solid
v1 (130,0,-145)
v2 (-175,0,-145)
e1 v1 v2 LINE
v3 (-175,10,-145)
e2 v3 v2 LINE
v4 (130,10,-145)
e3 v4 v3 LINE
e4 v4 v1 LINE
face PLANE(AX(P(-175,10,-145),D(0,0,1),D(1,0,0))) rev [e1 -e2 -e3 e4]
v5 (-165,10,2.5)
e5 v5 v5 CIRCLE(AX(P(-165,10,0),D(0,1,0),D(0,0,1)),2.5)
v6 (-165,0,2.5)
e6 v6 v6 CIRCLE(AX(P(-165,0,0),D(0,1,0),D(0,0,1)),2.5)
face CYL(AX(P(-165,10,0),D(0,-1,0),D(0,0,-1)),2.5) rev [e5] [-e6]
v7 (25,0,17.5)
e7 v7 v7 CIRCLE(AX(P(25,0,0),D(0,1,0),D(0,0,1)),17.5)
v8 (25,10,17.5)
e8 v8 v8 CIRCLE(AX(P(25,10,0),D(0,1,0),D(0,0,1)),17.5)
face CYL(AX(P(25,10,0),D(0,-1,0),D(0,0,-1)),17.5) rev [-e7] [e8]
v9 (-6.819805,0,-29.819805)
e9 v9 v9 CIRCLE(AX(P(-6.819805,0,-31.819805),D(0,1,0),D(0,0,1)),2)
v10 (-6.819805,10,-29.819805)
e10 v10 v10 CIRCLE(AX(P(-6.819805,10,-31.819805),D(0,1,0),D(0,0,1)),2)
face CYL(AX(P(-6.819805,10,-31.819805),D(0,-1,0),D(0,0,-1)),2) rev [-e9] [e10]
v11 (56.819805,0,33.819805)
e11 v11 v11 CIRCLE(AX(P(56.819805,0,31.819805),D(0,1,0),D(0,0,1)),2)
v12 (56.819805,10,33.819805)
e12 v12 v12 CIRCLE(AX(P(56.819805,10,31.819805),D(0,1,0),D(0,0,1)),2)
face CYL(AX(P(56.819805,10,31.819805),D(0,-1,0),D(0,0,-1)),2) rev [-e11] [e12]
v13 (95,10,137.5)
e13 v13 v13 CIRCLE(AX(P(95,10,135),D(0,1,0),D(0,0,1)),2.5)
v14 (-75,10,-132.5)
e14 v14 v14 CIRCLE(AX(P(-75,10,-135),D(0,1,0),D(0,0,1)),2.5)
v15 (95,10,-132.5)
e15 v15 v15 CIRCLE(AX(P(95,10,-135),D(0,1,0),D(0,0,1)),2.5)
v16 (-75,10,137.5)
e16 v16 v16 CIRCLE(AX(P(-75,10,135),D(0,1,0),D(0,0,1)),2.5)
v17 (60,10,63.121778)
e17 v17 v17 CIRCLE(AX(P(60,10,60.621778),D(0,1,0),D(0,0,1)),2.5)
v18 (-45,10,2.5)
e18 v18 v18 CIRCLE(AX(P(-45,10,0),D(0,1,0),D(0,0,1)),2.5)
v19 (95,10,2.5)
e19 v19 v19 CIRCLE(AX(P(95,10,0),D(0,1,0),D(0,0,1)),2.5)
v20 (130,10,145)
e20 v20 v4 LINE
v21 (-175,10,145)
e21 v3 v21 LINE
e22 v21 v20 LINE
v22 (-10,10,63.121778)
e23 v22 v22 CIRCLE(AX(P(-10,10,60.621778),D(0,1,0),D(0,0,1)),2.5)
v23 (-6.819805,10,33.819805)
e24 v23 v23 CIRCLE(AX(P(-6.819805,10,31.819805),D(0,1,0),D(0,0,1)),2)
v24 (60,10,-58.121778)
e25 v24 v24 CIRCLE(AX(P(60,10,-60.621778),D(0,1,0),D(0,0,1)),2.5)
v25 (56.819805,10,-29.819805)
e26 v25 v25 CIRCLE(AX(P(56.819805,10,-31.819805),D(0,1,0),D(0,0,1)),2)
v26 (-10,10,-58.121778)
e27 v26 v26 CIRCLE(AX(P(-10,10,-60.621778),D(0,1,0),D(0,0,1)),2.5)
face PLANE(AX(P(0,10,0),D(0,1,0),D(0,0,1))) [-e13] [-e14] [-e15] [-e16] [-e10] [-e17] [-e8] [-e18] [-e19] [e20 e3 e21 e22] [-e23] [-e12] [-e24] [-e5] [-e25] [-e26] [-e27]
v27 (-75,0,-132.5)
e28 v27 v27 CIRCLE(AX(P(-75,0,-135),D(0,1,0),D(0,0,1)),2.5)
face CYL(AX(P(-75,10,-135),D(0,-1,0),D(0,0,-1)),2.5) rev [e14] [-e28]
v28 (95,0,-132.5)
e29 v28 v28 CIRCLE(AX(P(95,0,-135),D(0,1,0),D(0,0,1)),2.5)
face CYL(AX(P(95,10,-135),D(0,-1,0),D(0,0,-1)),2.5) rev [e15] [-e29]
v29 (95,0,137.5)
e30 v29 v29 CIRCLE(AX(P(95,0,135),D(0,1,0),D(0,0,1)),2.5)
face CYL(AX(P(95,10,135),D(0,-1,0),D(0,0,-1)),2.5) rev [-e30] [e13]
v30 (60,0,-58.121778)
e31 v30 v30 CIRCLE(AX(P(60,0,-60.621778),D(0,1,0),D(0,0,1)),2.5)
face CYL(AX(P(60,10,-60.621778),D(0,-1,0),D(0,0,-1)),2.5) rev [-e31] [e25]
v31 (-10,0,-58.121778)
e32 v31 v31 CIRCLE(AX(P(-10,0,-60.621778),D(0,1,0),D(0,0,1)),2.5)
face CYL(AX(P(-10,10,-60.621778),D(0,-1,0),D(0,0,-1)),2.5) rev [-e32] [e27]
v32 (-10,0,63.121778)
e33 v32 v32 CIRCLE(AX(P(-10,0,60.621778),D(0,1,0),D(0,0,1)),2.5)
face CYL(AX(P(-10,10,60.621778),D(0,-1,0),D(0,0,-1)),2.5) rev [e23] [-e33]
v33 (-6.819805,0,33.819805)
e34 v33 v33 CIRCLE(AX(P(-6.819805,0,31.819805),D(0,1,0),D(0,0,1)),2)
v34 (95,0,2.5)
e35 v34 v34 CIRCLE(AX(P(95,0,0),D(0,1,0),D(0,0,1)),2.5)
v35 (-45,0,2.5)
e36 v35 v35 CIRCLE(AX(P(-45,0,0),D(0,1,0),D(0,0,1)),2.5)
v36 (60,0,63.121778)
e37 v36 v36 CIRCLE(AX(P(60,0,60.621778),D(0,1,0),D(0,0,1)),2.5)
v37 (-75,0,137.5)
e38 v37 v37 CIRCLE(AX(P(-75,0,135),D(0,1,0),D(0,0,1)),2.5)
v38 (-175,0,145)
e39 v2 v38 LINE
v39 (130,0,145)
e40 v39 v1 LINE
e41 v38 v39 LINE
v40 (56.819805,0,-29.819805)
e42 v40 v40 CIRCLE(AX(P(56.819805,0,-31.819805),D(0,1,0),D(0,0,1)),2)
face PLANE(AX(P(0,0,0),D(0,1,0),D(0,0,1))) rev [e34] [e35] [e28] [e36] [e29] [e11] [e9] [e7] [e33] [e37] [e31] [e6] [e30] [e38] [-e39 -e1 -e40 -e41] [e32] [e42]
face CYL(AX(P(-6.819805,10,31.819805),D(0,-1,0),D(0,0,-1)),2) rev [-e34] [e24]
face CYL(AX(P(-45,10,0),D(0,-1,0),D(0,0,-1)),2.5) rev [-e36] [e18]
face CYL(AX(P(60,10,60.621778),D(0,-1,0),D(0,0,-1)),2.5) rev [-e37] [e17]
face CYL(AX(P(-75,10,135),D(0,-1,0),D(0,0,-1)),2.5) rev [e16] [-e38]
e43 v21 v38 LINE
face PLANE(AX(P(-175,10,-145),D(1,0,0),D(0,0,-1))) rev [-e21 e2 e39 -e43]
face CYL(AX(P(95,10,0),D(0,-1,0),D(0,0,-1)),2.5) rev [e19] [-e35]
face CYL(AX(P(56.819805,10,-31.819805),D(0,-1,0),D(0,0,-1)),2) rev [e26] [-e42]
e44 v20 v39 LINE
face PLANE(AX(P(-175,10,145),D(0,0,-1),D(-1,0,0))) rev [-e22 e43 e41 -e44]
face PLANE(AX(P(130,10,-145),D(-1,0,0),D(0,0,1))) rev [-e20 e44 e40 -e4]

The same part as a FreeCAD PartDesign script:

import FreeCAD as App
import Part
import Sketcher
Q = App.Units.Quantity


def add_polygon(sketch, points):
    """Adds a closed chain of lines whose ends are joined by coincident constraints."""
    first, n = sketch.GeometryCount, len(points)
    for a, b in zip(points, points[1:] + points[:1]):
        sketch.addGeometry(Part.LineSegment(App.Vector(*a, 0), App.Vector(*b, 0)), False)
    for i in range(n):
        sketch.addConstraint(Sketcher.Constraint("Coincident", first + i, 2, first + (i + 1) % n, 1))

doc = App.newDocument("Part")
body = doc.addObject("PartDesign::Body", "Body")

# Sketch on XZ plane
sketch1 = body.newObject("Sketcher::SketchObject", "Sketch")
sketch1.AttachmentSupport = (doc.getObject("XZ_Plane"), [""])
sketch1.MapMode = "FlatFace"
add_polygon(sketch1, [(-175, -145), (-175, 145), (130, 145), (130, -145)])  # lines 0-3
sketch1.addGeometry(Part.Circle(App.Vector(-75, 135, 0), App.Vector(0, 0, 1), 2.5), False)  # 4
sketch1.addGeometry(Part.Circle(App.Vector(95, 135, 0), App.Vector(0, 0, 1), 2.5), False)  # 5
sketch1.addGeometry(Part.Circle(App.Vector(-10, 60.6, 0), App.Vector(0, 0, 1), 2.5), False)  # 6
sketch1.addGeometry(Part.Circle(App.Vector(-6.8, 31.8, 0), App.Vector(0, 0, 1), 2), False)  # 7
sketch1.addGeometry(Part.Circle(App.Vector(60, 60.6, 0), App.Vector(0, 0, 1), 2.5), False)  # 8
sketch1.addGeometry(Part.Circle(App.Vector(56.8, 31.8, 0), App.Vector(0, 0, 1), 2), False)  # 9
sketch1.addGeometry(Part.Circle(App.Vector(-165, 0, 0), App.Vector(0, 0, 1), 2.5), False)  # 10
sketch1.addGeometry(Part.Circle(App.Vector(-45, 0, 0), App.Vector(0, 0, 1), 2.5), False)  # 11
sketch1.addGeometry(Part.Circle(App.Vector(-75, -135, 0), App.Vector(0, 0, 1), 2.5), False)  # 12
sketch1.addGeometry(Part.Circle(App.Vector(-6.8, -31.8, 0), App.Vector(0, 0, 1), 2), False)  # 13
sketch1.addGeometry(Part.Circle(App.Vector(25, 0, 0), App.Vector(0, 0, 1), 17.5), False)  # 14
sketch1.addGeometry(Part.Circle(App.Vector(-10, -60.6, 0), App.Vector(0, 0, 1), 2.5), False)  # 15
sketch1.addGeometry(Part.Circle(App.Vector(56.8, -31.8, 0), App.Vector(0, 0, 1), 2), False)  # 16
sketch1.addGeometry(Part.Circle(App.Vector(95, 0, 0), App.Vector(0, 0, 1), 2.5), False)  # 17
sketch1.addGeometry(Part.Circle(App.Vector(60, -60.6, 0), App.Vector(0, 0, 1), 2.5), False)  # 18
sketch1.addGeometry(Part.Circle(App.Vector(95, -135, 0), App.Vector(0, 0, 1), 2.5), False)  # 19
sketch1.addConstraint(Sketcher.Constraint("Vertical", 0))
sketch1.addConstraint(Sketcher.Constraint("Horizontal", 1))
sketch1.addConstraint(Sketcher.Constraint("Vertical", 2))
sketch1.addConstraint(Sketcher.Constraint("Horizontal", 3))
sketch1.addConstraint(Sketcher.Constraint("Equal", 4, 5))
sketch1.addConstraint(Sketcher.Constraint("Equal", 5, 6))
sketch1.addConstraint(Sketcher.Constraint("Equal", 6, 8))
sketch1.addConstraint(Sketcher.Constraint("Equal", 7, 9))
sketch1.addConstraint(Sketcher.Constraint("Equal", 8, 10))
sketch1.addConstraint(Sketcher.Constraint("Equal", 10, 11))
sketch1.addConstraint(Sketcher.Constraint("Equal", 11, 12))
sketch1.addConstraint(Sketcher.Constraint("Equal", 9, 13))
sketch1.addConstraint(Sketcher.Constraint("Equal", 12, 15))
sketch1.addConstraint(Sketcher.Constraint("Equal", 13, 16))
sketch1.addConstraint(Sketcher.Constraint("Equal", 15, 17))
sketch1.addConstraint(Sketcher.Constraint("Equal", 17, 18))
sketch1.addConstraint(Sketcher.Constraint("Equal", 18, 19))
sketch1.addConstraint(Sketcher.Constraint("Symmetric", 4, 3, 12, 3, -1))
sketch1.addConstraint(Sketcher.Constraint("Symmetric", 7, 3, 13, 3, -1))
sketch1.addConstraint(Sketcher.Constraint("Symmetric", 6, 3, 15, 3, -1))
sketch1.addConstraint(Sketcher.Constraint("Symmetric", 9, 3, 16, 3, -1))
sketch1.addConstraint(Sketcher.Constraint("Symmetric", 8, 3, 18, 3, -1))
sketch1.addConstraint(Sketcher.Constraint("Symmetric", 5, 3, 19, 3, -1))
sketch1.addConstraint(Sketcher.Constraint("PointOnObject", 10, 3, -1))
sketch1.addConstraint(Sketcher.Constraint("PointOnObject", 11, 3, -1))
sketch1.addConstraint(Sketcher.Constraint("PointOnObject", 14, 3, -1))
sketch1.addConstraint(Sketcher.Constraint("PointOnObject", 17, 3, -1))
sketch1.addConstraint(Sketcher.Constraint("Horizontal", 4, 3, 5, 3))
sketch1.addConstraint(Sketcher.Constraint("Horizontal", 6, 3, 8, 3))
sketch1.addConstraint(Sketcher.Constraint("Horizontal", 7, 3, 9, 3))
sketch1.addConstraint(Sketcher.Constraint("Vertical", 5, 3, 17, 3))
sketch1.addConstraint(Sketcher.Constraint("Diameter", 4, Q("5 mm")))
sketch1.addConstraint(Sketcher.Constraint("Diameter", 7, Q("4 mm")))
sketch1.addConstraint(Sketcher.Constraint("Diameter", 14, Q("35 mm")))
sketch1.addConstraint(Sketcher.Constraint("DistanceX", 1, 1, 1, 2, Q("305 mm")))
sketch1.addConstraint(Sketcher.Constraint("DistanceY", 0, 1, 0, 2, Q("290 mm")))
sketch1.addConstraint(Sketcher.Constraint("DistanceX", 4, 3, -1, 1, Q("75 mm")))
sketch1.addConstraint(Sketcher.Constraint("DistanceY", -1, 1, 4, 3, Q("135 mm")))
sketch1.addConstraint(Sketcher.Constraint("DistanceX", -1, 1, 5, 3, Q("95 mm")))
sketch1.addConstraint(Sketcher.Constraint("DistanceX", 6, 3, -1, 1, Q("10 mm")))
sketch1.addConstraint(Sketcher.Constraint("DistanceX", -1, 1, 8, 3, Q("60 mm")))
sketch1.addConstraint(Sketcher.Constraint("DistanceX", 10, 3, -1, 1, Q("165 mm")))
sketch1.addConstraint(Sketcher.Constraint("DistanceX", 11, 3, -1, 1, Q("45 mm")))
sketch1.addConstraint(Sketcher.Constraint("DistanceX", -1, 1, 14, 3, Q("25 mm")))
sketch1.addConstraint(Sketcher.Constraint("DistanceX", 0, 2, -1, 1, Q("175 mm")))
sketch1.addConstraint(Sketcher.Constraint("DistanceY", -1, 1, 0, 2, Q("145 mm")))
sketch1.addConstraint(Sketcher.Constraint("DistanceY", -1, 1, 6, 3, Q("60.621778 mm")))
sketch1.addConstraint(Sketcher.Constraint("DistanceX", 7, 3, 9, 3, Q("63.63961 mm")))
sketch1.addConstraint(Sketcher.Constraint("DistanceY", 13, 3, 7, 3, Q("63.63961 mm")))
sketch1.addConstraint(Sketcher.Constraint("DistanceX", 7, 3, -1, 1, Q("6.819805 mm")))
pad1 = body.newObject("PartDesign::Pad", "Pad")
pad1.Profile = sketch1
pad1.Length = 10
pad1.Reversed = True

doc.recompute()
